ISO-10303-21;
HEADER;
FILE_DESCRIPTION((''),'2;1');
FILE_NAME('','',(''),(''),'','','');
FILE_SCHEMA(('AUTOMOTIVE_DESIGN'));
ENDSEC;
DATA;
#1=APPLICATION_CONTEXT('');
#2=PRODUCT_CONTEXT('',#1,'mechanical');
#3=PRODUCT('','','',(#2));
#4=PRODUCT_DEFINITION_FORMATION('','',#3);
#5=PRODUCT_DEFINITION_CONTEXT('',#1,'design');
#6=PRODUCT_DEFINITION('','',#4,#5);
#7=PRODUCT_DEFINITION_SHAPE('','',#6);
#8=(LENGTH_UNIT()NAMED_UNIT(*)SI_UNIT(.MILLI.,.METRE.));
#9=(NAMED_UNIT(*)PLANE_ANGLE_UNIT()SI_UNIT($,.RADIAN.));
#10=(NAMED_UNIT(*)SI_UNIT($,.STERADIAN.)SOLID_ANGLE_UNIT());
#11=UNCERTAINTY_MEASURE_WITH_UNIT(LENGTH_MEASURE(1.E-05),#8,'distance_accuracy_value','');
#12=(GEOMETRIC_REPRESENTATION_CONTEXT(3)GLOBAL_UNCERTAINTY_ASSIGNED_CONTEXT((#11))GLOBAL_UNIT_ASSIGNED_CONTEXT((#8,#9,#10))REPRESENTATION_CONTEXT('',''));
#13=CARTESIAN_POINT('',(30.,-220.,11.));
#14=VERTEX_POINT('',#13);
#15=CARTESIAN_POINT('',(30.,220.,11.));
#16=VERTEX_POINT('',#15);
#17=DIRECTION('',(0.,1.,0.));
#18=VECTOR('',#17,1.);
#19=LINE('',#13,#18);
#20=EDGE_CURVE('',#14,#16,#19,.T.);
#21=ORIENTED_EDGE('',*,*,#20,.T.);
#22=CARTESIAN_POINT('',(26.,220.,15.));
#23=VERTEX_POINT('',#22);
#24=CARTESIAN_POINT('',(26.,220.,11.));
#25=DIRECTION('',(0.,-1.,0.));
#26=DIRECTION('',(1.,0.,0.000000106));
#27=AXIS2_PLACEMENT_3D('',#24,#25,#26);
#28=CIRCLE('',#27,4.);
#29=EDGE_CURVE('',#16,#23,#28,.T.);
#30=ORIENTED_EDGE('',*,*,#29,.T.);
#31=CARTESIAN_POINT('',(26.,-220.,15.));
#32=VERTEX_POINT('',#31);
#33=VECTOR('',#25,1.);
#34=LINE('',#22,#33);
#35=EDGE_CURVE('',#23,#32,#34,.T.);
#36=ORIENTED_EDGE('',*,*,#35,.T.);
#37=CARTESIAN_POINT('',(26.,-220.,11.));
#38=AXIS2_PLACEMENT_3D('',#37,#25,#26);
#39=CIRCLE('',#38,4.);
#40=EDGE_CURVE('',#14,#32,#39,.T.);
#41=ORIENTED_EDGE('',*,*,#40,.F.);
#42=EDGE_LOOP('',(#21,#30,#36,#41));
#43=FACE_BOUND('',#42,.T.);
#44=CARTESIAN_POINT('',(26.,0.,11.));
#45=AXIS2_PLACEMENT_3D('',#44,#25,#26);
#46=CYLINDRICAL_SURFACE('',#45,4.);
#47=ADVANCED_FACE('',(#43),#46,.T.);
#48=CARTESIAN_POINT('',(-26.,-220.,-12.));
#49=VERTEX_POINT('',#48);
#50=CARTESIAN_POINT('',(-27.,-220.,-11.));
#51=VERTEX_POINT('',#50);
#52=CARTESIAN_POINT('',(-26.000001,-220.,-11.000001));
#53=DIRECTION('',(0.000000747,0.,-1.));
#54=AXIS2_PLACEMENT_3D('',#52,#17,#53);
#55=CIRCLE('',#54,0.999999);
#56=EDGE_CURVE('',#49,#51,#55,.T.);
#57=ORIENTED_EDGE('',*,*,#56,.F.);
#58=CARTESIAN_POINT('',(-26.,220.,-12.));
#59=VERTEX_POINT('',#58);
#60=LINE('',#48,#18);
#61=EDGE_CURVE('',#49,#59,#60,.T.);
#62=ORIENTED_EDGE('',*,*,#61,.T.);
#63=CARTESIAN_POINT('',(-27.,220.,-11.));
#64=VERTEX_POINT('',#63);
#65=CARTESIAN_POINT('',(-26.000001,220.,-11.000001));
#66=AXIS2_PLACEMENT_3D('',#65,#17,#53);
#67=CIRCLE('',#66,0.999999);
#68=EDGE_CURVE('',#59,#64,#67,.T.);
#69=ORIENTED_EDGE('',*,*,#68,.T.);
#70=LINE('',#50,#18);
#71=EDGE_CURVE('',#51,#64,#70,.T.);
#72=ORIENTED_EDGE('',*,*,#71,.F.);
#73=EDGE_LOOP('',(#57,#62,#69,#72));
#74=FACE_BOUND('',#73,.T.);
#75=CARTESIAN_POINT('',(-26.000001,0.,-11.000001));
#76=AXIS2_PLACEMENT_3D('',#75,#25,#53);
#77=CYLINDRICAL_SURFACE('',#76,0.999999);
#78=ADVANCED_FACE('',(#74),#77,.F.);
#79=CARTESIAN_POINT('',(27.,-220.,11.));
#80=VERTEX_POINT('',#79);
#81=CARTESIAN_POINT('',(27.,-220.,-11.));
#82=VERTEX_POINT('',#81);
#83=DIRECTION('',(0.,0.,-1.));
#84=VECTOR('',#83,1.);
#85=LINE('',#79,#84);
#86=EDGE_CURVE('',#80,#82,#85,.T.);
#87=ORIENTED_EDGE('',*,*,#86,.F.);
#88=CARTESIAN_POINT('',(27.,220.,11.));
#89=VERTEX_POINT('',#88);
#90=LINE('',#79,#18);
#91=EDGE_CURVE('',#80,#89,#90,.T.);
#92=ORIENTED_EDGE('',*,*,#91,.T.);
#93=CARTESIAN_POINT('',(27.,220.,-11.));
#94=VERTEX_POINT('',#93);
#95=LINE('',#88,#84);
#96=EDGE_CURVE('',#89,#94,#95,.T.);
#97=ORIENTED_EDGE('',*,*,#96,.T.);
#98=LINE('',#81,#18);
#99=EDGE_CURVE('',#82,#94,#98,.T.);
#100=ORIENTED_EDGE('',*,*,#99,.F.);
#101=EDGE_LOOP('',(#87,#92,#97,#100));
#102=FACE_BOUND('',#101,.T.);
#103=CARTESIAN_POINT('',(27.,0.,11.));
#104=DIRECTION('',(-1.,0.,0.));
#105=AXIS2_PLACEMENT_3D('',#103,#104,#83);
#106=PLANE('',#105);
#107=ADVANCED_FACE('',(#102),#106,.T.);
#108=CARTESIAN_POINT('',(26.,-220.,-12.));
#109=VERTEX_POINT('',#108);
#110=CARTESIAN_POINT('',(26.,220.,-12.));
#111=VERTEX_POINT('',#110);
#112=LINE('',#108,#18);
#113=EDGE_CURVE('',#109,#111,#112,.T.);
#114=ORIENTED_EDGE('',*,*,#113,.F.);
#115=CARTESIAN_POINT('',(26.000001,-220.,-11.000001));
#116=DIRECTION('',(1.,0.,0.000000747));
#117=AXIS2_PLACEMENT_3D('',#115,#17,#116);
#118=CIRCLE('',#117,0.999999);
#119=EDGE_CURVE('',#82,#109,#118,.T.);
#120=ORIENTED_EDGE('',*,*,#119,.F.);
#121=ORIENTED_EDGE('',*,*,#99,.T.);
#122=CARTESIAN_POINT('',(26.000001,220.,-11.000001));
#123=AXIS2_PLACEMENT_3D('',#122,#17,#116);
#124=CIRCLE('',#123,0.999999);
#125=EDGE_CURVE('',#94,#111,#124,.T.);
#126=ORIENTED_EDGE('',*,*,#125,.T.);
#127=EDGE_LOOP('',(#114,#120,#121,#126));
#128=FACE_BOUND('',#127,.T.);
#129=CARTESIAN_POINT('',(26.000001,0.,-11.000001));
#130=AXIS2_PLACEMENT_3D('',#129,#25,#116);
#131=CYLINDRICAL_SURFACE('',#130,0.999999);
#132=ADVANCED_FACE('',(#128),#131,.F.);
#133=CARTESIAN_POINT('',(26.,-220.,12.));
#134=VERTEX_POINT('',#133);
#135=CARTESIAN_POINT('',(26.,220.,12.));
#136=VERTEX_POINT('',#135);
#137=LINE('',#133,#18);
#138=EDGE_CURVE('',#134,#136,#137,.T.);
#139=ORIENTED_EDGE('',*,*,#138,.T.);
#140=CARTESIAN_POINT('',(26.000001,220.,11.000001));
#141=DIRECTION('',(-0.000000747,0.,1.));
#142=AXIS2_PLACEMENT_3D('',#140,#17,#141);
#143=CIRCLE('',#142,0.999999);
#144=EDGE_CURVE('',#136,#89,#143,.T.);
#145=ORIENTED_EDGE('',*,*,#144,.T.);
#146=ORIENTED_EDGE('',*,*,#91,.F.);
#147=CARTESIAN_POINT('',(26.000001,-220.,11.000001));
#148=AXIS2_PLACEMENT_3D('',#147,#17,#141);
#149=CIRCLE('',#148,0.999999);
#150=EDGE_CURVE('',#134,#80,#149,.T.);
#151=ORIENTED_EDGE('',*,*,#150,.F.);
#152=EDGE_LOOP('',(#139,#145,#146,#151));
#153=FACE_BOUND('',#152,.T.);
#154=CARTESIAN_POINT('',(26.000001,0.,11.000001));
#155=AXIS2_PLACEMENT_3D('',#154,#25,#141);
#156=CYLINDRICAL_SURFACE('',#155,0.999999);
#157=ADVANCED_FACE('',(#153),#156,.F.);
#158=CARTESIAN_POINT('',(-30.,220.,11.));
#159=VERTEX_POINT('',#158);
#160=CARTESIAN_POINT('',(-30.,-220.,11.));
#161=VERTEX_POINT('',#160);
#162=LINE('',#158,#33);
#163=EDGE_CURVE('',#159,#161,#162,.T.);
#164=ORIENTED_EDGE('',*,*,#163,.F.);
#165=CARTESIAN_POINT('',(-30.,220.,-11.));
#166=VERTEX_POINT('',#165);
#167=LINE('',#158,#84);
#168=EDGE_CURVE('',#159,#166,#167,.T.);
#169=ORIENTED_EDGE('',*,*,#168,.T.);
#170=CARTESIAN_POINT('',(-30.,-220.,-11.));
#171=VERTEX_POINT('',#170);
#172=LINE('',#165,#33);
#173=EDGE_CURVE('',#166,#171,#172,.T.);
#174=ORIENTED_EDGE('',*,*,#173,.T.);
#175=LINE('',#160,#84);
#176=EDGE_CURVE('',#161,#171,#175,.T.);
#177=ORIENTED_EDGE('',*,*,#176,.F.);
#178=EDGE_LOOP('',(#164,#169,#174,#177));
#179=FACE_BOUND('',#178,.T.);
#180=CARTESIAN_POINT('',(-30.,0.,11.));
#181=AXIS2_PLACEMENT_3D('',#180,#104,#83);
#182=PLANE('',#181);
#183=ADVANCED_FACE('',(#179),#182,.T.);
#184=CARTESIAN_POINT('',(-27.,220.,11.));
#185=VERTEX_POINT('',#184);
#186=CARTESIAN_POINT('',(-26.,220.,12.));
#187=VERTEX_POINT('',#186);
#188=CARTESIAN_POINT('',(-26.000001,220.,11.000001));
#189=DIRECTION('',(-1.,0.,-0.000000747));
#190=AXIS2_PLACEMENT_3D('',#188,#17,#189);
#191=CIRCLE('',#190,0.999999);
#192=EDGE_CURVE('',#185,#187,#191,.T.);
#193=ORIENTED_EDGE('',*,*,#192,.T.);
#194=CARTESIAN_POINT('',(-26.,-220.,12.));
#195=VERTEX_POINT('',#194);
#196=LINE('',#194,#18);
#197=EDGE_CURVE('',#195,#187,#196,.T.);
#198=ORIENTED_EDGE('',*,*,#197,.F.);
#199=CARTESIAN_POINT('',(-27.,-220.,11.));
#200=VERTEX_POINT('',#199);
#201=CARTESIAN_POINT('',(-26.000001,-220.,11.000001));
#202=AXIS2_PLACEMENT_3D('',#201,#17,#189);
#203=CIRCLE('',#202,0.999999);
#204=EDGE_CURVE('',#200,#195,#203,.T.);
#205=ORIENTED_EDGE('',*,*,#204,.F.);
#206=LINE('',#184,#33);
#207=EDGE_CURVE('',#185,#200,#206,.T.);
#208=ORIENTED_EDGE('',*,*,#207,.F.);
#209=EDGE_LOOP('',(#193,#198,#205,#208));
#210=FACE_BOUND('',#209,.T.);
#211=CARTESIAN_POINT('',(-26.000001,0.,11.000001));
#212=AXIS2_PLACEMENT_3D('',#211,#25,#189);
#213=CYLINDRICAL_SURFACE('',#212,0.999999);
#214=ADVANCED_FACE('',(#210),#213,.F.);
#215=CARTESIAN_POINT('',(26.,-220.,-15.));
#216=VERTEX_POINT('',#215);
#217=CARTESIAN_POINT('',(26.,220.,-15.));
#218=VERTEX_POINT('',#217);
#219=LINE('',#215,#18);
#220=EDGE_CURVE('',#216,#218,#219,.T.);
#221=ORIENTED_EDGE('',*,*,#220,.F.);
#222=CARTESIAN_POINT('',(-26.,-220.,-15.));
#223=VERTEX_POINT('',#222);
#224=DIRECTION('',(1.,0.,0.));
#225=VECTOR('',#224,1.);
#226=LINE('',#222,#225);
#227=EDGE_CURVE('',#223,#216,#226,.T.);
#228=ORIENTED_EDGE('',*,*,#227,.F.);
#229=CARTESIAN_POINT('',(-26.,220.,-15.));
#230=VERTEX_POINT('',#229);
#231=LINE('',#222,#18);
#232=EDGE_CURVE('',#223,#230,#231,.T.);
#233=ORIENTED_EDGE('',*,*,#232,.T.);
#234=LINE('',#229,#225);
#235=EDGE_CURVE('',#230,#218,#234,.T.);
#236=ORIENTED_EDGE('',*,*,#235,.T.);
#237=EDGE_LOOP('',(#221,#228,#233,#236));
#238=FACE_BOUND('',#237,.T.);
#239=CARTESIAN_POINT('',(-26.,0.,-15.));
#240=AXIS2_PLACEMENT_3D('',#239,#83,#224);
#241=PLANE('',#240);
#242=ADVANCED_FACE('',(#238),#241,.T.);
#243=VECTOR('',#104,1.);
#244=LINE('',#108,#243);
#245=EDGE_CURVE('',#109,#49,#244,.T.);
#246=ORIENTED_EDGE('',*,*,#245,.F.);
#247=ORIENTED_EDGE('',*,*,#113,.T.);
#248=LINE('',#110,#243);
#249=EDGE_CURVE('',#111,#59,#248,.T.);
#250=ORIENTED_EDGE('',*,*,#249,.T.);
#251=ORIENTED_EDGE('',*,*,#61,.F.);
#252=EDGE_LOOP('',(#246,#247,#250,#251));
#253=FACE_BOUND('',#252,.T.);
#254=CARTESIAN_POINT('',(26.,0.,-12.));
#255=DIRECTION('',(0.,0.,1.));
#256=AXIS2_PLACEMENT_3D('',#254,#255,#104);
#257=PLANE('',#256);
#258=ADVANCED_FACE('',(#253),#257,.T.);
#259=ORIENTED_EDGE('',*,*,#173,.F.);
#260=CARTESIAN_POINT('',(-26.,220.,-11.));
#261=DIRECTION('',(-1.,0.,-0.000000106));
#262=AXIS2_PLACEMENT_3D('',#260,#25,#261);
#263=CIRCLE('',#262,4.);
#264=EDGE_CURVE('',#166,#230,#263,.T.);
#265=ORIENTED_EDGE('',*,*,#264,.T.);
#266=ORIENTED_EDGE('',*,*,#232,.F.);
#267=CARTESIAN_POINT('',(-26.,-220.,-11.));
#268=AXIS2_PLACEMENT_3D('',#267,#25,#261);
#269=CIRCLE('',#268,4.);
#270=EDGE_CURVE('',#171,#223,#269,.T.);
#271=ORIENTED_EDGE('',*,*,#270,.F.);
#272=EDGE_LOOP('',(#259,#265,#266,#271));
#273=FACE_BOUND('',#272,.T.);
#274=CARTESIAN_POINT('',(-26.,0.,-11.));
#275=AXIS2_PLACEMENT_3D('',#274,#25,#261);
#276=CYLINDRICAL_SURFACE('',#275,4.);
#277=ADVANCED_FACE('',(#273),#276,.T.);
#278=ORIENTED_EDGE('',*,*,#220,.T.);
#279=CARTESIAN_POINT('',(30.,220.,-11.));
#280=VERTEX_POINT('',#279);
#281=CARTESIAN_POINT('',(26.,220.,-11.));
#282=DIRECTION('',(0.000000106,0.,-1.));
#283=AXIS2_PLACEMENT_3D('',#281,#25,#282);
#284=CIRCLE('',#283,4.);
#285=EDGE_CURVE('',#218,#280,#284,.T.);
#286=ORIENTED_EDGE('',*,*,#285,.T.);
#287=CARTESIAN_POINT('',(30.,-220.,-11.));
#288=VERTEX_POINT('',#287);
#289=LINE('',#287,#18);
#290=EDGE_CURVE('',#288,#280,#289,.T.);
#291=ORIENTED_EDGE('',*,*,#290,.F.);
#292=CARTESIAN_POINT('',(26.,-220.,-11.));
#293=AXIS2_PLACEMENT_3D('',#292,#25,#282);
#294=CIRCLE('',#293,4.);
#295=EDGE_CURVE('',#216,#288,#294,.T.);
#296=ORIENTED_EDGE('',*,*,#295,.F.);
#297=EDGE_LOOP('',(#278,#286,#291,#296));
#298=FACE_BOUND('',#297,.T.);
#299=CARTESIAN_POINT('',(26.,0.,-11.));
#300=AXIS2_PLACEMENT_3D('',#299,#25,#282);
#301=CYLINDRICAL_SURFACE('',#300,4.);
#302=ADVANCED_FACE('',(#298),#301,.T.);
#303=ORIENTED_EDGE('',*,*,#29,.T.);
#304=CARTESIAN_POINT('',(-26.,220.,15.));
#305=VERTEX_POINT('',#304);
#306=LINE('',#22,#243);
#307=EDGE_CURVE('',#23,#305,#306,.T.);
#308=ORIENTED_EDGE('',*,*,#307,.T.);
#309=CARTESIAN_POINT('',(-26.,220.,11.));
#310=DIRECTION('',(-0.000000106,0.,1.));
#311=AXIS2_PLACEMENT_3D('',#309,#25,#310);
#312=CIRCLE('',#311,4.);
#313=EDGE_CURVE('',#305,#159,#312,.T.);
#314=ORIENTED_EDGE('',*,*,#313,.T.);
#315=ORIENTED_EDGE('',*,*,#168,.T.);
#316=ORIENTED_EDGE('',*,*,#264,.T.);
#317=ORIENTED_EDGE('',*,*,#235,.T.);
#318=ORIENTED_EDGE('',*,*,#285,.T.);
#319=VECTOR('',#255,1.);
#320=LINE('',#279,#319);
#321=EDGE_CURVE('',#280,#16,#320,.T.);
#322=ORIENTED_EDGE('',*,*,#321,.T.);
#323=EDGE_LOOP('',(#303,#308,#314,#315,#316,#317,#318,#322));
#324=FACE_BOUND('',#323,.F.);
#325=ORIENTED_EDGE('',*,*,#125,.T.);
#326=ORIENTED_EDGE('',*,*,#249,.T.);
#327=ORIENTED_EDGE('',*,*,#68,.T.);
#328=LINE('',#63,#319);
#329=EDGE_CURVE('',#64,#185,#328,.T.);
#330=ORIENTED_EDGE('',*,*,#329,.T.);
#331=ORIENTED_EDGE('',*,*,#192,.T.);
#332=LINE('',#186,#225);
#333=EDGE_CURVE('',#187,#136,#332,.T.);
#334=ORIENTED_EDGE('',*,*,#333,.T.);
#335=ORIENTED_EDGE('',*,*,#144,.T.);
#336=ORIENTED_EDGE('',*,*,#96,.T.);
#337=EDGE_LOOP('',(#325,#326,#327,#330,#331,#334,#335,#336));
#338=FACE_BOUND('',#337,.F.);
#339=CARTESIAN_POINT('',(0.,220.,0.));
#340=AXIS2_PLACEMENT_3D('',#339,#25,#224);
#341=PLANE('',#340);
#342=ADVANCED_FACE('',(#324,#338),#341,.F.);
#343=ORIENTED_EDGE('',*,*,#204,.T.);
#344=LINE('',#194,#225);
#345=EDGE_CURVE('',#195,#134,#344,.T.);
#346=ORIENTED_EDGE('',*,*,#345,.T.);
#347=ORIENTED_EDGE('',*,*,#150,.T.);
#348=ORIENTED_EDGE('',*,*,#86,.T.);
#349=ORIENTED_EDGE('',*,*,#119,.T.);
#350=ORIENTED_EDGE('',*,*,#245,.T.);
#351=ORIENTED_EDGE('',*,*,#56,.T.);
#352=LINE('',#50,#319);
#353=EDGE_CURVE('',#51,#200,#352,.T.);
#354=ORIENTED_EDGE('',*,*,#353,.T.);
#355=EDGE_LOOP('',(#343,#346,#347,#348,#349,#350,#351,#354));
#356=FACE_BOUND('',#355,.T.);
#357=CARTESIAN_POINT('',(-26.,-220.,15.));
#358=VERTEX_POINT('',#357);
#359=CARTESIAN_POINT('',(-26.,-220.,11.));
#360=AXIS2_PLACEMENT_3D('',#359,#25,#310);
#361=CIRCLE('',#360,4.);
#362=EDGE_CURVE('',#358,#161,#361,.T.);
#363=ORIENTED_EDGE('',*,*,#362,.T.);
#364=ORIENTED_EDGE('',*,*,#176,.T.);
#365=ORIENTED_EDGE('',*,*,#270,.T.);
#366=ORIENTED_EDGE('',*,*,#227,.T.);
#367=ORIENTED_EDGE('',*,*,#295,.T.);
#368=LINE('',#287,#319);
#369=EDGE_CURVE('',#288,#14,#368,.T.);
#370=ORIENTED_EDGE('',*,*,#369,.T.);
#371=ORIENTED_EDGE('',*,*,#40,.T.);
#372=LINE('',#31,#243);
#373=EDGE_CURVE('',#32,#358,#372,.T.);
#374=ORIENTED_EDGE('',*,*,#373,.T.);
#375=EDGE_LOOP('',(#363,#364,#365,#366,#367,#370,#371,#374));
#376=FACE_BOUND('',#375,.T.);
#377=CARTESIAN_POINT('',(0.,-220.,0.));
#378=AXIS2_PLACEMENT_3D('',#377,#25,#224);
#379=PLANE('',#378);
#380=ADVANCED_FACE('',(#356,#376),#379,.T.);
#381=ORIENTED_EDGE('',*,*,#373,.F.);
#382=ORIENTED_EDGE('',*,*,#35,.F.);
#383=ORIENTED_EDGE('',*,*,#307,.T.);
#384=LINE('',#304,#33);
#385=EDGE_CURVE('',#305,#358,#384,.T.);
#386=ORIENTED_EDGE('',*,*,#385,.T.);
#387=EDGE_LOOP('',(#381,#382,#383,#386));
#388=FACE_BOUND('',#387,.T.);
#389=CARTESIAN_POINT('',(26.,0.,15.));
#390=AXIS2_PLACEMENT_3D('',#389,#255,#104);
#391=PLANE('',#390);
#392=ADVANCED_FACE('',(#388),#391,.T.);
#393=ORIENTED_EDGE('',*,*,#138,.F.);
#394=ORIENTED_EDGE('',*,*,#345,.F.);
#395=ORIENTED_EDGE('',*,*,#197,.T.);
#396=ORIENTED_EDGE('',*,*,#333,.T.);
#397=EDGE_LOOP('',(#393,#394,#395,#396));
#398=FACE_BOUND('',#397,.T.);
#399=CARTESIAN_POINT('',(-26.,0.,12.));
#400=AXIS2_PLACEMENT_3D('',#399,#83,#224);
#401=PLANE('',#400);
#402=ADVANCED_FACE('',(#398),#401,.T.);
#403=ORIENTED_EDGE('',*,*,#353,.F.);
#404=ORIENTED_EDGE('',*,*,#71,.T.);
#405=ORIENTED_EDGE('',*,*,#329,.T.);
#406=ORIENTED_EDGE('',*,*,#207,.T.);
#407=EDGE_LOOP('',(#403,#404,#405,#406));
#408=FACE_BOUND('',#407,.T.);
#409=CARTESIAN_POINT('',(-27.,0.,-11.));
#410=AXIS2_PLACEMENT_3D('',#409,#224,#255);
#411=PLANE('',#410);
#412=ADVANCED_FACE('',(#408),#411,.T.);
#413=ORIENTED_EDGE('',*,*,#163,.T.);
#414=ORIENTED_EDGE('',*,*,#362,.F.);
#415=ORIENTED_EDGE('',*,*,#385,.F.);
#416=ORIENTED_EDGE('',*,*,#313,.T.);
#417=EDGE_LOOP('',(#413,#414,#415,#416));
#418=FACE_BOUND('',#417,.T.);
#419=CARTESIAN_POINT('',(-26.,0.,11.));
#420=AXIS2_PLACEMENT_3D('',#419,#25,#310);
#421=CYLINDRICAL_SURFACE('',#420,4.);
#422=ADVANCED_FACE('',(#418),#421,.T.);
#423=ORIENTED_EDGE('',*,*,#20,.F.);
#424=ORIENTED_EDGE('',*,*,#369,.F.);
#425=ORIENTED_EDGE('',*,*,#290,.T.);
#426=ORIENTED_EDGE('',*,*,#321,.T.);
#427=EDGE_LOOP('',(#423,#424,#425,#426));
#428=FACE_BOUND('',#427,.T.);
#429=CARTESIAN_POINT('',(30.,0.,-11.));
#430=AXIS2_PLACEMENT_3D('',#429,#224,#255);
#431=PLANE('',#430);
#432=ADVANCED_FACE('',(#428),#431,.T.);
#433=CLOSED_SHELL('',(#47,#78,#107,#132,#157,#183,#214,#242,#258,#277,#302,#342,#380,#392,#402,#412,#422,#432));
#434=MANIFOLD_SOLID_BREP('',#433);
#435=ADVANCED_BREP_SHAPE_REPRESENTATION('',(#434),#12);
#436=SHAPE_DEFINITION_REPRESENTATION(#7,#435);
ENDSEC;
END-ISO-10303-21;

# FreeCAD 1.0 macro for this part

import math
import FreeCAD as App
import Part
import Sketcher

doc = App.newDocument("Part")
params = doc.addObject("Spreadsheet::Sheet", "Params")
for row, (alias, value) in enumerate([
    ("sketch1_radius", "4 mm"),
    ("sketch1_radius2", "0.999999 mm"),
    ("sketch1_width", "52 mm"),
    ("sketch1_height", "22 mm"),
    ("pad1_length", "440 mm"),
], start=1):
    params.set(f"A{row}", alias)
    params.set(f"B{row}", "=" + value)
    params.setAlias(f"B{row}", alias)

body = doc.addObject("PartDesign::Body", "Body")

# Sketch on XZ plane
sketch1 = doc.addObject("Sketcher::SketchObject", "Sketch")
body.addObject(sketch1)
sketch1.AttachmentSupport = (doc.XZ_Plane, [""])
sketch1.MapMode = "FlatFace"
sketch1.addGeometry([
    Part.ArcOfCircle(Part.Circle(App.Vector(26, 11, 0), App.Vector(0, 0, 1), 4), math.radians(0.000006), math.radians(89.999994)),  # 0
    Part.LineSegment(App.Vector(26, 15, 0), App.Vector(-26, 15, 0)),  # 1
    Part.ArcOfCircle(Part.Circle(App.Vector(-26, 11, 0), App.Vector(0, 0, 1), 4), math.radians(90.000006), math.radians(179.999994)),  # 2
    Part.LineSegment(App.Vector(-30, 11, 0), App.Vector(-30, -11, 0)),  # 3
    Part.ArcOfCircle(Part.Circle(App.Vector(-26, -11, 0), App.Vector(0, 0, 1), 4), math.radians(-179.999994), math.radians(-90.000006)),  # 4
    Part.LineSegment(App.Vector(-26, -15, 0), App.Vector(26, -15, 0)),  # 5
    Part.ArcOfCircle(Part.Circle(App.Vector(26, -11, 0), App.Vector(0, 0, 1), 4), math.radians(-89.999994), math.radians(-0.000006)),  # 6
    Part.LineSegment(App.Vector(30, -11, 0), App.Vector(30, 11, 0)),  # 7
    Part.LineSegment(App.Vector(-27, -11, 0), App.Vector(-27, 11, 0)),  # 8
    Part.ArcOfCircle(Part.Circle(App.Vector(-26.000001, 11.000001, 0), App.Vector(0, 0, 1), 0.999999), math.radians(89.999957), math.radians(180.000043)),  # 9
    Part.LineSegment(App.Vector(-26, 12, 0), App.Vector(26, 12, 0)),  # 10
    Part.ArcOfCircle(Part.Circle(App.Vector(26.000001, 11.000001, 0), App.Vector(0, 0, 1), 0.999999), math.radians(-0.000043), math.radians(90.000043)),  # 11
    Part.LineSegment(App.Vector(27, 11, 0), App.Vector(27, -11, 0)),  # 12
    Part.ArcOfCircle(Part.Circle(App.Vector(26.000001, -11.000001, 0), App.Vector(0, 0, 1), 0.999999), math.radians(-90.000043), math.radians(0.000043)),  # 13
    Part.LineSegment(App.Vector(26, -12, 0), App.Vector(-26, -12, 0)),  # 14
    Part.ArcOfCircle(Part.Circle(App.Vector(-26.000001, -11.000001, 0), App.Vector(0, 0, 1), 0.999999), math.radians(179.999957), math.radians(270.000043)),  # 15
], False)
sketch1.addConstraint([
    Sketcher.Constraint("Tangent", 0, 2, 1, 1),
    Sketcher.Constraint("Tangent", 1, 2, 2, 1),
    Sketcher.Constraint("Tangent", 2, 2, 3, 1),
    Sketcher.Constraint("Tangent", 3, 2, 4, 1),
    Sketcher.Constraint("Tangent", 4, 2, 5, 1),
    Sketcher.Constraint("Tangent", 5, 2, 6, 1),
    Sketcher.Constraint("Tangent", 6, 2, 7, 1),
    Sketcher.Constraint("Tangent", 7, 2, 0, 1),
    Sketcher.Constraint("Tangent", 8, 2, 9, 2),
    Sketcher.Constraint("Tangent", 9, 1, 10, 1),
    Sketcher.Constraint("Tangent", 10, 2, 11, 2),
    Sketcher.Constraint("Tangent", 11, 1, 12, 1),
    Sketcher.Constraint("Tangent", 12, 2, 13, 2),
    Sketcher.Constraint("Tangent", 13, 1, 14, 1),
    Sketcher.Constraint("Tangent", 14, 2, 15, 2),
    Sketcher.Constraint("Tangent", 15, 1, 8, 1),
    Sketcher.Constraint("Horizontal", 1),
    Sketcher.Constraint("Vertical", 3),
    Sketcher.Constraint("Horizontal", 5),
    Sketcher.Constraint("Vertical", 7),
    Sketcher.Constraint("Vertical", 8),
    Sketcher.Constraint("Horizontal", 10),
    Sketcher.Constraint("Vertical", 12),
    Sketcher.Constraint("Horizontal", 14),
    Sketcher.Constraint("Coincident", 9, 3, 2, 3),
    Sketcher.Constraint("Coincident", 11, 3, 0, 3),
    Sketcher.Constraint("Coincident", 13, 3, 6, 3),
    Sketcher.Constraint("Equal", 0, 2),
    Sketcher.Constraint("Equal", 2, 4),
    Sketcher.Constraint("Equal", 4, 6),
    Sketcher.Constraint("Equal", 13, 15),
    Sketcher.Constraint("Symmetric", 0, 3, 4, 3, -1, 1),
    Sketcher.Constraint("Radius", 0, 4.0),
    Sketcher.Constraint("Radius", 9, 0.999999),
    Sketcher.Constraint("DistanceX", 1, 2, 1, 1, 52.0),
    Sketcher.Constraint("DistanceY", 3, 2, 3, 1, 22.0),
])
sketch1.setExpression("Constraints[32]", "Params.sketch1_radius")
sketch1.setExpression("Constraints[33]", "Params.sketch1_radius2")
sketch1.setExpression("Constraints[34]", "Params.sketch1_width")
sketch1.setExpression("Constraints[35]", "Params.sketch1_height")
pad1 = doc.addObject("PartDesign::Pad", "Pad")
body.addObject(pad1)
pad1.Profile = sketch1
pad1.setExpression("Length", "Params.pad1_length")
pad1.Midplane = True

doc.recompute()
